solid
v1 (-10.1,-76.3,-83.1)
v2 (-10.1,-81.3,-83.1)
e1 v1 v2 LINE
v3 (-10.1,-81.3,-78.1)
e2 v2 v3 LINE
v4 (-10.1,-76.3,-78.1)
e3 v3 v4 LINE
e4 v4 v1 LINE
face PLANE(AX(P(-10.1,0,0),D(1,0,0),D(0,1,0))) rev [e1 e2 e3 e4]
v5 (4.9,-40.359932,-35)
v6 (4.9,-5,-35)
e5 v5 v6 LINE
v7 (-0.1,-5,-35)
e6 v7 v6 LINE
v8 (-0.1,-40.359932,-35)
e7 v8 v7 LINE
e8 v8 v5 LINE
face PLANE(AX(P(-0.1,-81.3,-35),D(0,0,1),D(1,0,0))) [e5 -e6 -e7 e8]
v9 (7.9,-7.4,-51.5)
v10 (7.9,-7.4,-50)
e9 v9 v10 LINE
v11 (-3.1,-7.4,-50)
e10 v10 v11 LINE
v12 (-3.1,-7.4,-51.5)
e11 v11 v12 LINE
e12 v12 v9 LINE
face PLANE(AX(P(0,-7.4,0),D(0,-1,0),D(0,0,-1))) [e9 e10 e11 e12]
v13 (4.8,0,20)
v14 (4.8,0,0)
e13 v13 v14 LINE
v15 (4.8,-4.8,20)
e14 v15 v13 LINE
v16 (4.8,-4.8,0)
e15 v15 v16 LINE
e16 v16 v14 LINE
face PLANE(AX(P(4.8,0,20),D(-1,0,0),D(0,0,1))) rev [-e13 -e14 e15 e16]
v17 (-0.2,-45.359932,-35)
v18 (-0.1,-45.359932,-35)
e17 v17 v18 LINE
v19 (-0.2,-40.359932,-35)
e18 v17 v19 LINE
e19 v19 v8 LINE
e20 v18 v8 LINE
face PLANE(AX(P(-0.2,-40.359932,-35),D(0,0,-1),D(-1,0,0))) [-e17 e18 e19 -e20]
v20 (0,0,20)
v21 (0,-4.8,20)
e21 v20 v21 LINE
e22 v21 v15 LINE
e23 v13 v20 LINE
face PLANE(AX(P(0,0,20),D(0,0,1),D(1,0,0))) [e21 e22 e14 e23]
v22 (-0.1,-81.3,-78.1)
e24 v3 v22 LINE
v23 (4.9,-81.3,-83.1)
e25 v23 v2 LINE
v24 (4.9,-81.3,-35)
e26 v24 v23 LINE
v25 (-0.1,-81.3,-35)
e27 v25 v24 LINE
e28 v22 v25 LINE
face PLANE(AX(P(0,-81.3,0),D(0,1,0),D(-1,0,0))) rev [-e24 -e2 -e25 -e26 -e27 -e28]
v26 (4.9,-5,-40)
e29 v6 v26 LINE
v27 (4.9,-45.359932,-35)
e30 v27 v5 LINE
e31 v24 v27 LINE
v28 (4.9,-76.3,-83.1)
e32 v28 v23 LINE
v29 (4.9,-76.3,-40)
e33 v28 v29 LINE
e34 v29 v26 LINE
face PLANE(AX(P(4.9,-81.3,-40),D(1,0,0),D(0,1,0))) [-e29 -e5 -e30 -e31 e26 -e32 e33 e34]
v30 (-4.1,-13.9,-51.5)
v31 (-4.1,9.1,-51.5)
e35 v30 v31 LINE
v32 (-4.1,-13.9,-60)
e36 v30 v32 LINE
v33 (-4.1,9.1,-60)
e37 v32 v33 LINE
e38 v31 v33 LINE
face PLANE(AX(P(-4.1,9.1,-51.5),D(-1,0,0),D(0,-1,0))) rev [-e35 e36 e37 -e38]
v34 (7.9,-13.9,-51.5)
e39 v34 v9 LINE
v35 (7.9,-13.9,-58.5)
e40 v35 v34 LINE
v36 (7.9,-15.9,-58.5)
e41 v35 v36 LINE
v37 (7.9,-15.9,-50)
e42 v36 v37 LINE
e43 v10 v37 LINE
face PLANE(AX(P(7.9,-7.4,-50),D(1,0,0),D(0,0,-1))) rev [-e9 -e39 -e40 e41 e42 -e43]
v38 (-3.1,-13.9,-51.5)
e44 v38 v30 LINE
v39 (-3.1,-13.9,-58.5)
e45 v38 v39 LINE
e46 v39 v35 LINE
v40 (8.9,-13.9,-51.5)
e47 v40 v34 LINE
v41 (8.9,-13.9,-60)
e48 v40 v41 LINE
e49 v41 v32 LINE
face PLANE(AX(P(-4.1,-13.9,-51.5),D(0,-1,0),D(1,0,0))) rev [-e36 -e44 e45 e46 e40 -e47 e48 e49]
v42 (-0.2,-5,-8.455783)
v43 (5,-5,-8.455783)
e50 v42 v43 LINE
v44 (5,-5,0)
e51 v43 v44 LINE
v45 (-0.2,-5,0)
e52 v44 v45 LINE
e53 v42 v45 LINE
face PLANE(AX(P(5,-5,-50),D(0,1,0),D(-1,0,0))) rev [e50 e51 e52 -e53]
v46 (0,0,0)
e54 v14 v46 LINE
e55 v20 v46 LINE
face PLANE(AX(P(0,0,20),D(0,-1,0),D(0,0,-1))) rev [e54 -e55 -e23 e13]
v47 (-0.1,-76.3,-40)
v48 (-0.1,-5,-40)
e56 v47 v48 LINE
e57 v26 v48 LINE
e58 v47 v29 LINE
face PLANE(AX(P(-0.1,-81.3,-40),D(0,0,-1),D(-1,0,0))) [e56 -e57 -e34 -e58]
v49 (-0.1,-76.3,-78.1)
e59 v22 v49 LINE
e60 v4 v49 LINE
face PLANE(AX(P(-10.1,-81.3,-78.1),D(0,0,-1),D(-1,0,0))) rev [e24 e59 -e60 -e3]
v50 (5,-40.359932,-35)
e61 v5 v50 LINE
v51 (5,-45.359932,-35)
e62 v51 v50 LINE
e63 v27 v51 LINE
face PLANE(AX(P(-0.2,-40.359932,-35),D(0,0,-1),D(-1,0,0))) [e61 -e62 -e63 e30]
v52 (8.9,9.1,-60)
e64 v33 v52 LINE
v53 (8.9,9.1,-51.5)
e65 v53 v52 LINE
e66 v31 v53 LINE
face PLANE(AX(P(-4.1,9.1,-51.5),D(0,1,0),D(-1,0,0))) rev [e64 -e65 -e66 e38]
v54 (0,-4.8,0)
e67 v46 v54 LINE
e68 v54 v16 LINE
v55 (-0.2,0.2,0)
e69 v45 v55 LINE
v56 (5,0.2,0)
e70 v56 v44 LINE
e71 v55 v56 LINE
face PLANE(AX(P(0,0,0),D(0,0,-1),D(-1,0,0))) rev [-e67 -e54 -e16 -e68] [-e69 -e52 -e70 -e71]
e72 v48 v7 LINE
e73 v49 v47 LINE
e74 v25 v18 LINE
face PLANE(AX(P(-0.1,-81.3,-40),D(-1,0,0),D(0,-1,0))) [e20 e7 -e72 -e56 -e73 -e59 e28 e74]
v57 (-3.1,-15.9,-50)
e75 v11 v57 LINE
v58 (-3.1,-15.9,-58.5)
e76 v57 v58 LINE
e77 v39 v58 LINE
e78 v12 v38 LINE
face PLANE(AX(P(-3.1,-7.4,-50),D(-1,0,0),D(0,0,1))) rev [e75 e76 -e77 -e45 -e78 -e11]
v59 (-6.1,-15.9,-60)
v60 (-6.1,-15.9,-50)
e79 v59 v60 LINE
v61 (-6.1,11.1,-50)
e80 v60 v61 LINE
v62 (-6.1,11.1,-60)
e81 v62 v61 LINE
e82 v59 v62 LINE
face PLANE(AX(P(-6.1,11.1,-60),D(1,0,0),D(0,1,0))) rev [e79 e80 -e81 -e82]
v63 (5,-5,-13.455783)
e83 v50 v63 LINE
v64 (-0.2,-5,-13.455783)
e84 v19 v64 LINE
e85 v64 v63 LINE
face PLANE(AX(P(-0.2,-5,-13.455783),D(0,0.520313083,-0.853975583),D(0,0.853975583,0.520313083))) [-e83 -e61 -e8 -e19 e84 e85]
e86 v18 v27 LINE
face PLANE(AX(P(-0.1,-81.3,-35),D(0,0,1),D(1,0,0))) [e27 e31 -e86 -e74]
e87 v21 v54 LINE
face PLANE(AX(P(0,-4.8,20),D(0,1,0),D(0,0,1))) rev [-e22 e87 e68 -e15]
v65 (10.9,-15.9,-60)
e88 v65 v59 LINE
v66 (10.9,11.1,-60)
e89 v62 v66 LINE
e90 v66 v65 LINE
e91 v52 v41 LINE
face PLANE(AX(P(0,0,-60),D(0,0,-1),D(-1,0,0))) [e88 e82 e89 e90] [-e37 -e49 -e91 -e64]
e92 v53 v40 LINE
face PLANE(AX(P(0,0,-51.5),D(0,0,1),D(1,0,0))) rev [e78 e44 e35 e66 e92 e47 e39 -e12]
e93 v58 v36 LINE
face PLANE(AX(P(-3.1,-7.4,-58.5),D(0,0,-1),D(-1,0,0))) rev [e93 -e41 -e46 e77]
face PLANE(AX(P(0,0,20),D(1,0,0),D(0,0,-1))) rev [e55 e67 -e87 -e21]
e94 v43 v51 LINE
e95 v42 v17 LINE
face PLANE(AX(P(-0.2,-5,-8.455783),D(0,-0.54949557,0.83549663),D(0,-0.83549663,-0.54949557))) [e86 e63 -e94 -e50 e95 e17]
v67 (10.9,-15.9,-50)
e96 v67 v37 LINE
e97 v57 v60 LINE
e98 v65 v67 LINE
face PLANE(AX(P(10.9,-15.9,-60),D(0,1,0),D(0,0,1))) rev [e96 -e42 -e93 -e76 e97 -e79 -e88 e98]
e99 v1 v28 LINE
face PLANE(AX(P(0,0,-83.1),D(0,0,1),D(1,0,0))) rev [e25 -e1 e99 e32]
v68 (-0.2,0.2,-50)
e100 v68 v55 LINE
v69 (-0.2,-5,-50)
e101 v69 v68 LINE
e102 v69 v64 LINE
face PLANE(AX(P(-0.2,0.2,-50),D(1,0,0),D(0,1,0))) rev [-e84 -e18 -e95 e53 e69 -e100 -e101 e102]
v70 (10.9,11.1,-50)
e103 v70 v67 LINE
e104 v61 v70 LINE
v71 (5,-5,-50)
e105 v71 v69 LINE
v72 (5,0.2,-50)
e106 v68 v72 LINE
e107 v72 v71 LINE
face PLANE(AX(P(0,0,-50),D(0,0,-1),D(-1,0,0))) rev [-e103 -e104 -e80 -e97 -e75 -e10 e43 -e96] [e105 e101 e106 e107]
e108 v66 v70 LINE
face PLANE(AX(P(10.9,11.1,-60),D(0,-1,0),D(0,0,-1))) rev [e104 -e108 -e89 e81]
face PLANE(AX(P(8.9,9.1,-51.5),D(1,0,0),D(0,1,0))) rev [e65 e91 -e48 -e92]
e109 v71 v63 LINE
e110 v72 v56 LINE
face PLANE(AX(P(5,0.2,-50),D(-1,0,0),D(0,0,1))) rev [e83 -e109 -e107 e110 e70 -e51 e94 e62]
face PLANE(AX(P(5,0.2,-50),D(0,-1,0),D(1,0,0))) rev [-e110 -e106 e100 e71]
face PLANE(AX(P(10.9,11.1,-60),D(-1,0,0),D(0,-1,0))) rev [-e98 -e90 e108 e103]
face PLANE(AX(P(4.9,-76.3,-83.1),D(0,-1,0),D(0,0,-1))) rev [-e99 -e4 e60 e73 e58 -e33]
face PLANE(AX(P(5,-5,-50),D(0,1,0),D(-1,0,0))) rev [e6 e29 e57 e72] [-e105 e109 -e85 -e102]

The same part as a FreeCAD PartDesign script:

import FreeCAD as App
import Part
import Sketcher
from FreeCAD import Vector


def add_polygon(sketch, points):
    """Adds a closed chain of lines whose ends are joined by coincident constraints."""
    first, n = sketch.GeometryCount, len(points)
    for a, b in zip(points, points[1:] + points[:1]):
        sketch.addGeometry(Part.LineSegment(App.Vector(*a, 0), App.Vector(*b, 0)), False)
    for i in range(n):
        sketch.addConstraint(Sketcher.Constraint("Coincident", first + i, 2, first + (i + 1) % n, 1))

doc = App.newDocument("Part")
body = doc.addObject("PartDesign::Body", "Body")

sketch1 = body.newObject("Sketcher::SketchObject", "Sketch")
sketch1.AttachmentSupport = (doc.getObject("XY_Plane"), [""])
sketch1.MapMode = "FlatFace"
add_polygon(sketch1, [(0, 0), (0, -4.8), (4.8, -4.8), (4.8, 0)])
sketch1.addConstraint(Sketcher.Constraint("Vertical", 0))
sketch1.addConstraint(Sketcher.Constraint("Horizontal", 1))
sketch1.addConstraint(Sketcher.Constraint("Vertical", 2))
sketch1.addConstraint(Sketcher.Constraint("Horizontal", 3))
sketch1.addConstraint(Sketcher.Constraint("Coincident", 3, 2, -1, 1))
sketch1.addConstraint(Sketcher.Constraint("Equal", 3, 0))
sketch1.addConstraint(Sketcher.Constraint("DistanceX", 1, 1, 1, 2, 4.8))
pad1 = body.newObject("PartDesign::Pad", "Pad")
pad1.Profile = sketch1
pad1.Length = 20

sketch2 = body.newObject("Sketcher::SketchObject", "Sketch001")
sketch2.AttachmentSupport = (doc.getObject("XY_Plane"), [""])
sketch2.MapMode = "FlatFace"
add_polygon(sketch2, [(5, 0), (5, -5), (0, -5), (0, 0)])
sketch2.addConstraint(Sketcher.Constraint("Vertical", 0))
sketch2.addConstraint(Sketcher.Constraint("Horizontal", 1))
sketch2.addConstraint(Sketcher.Constraint("Vertical", 2))
sketch2.addConstraint(Sketcher.Constraint("Horizontal", 3))
sketch2.addConstraint(Sketcher.Constraint("Equal", 3, 0))
sketch2.addConstraint(Sketcher.Constraint("DistanceX", 1, 2, 1, 1, 5.2))
sketch2.addConstraint(Sketcher.Constraint("DistanceX", -1, 1, 0, 2, 5.0))
sketch2.addConstraint(Sketcher.Constraint("DistanceY", 0, 2, -1, 1, 5.0))
pad2 = body.newObject("PartDesign::Pad", "Pad001")
pad2.Profile = sketch2
pad2.Length = 50
pad2.Reversed = True

sketch3 = body.newObject("Sketcher::SketchObject", "Sketch002")
sketch3.AttachmentSupport = (doc.getObject("XY_Plane"), [""])
sketch3.MapMode = "FlatFace"
sketch3.AttachmentOffset = App.Placement(Vector(0, 0, -50), App.Rotation())
add_polygon(sketch3, [(11, 11), (11, -16), (-6, -16), (-6, 11)])
sketch3.addConstraint(Sketcher.Constraint("Vertical", 0))
sketch3.addConstraint(Sketcher.Constraint("Horizontal", 1))
sketch3.addConstraint(Sketcher.Constraint("Vertical", 2))
sketch3.addConstraint(Sketcher.Constraint("Horizontal", 3))
sketch3.addConstraint(Sketcher.Constraint("DistanceX", 1, 2, 1, 1, 17.0))
sketch3.addConstraint(Sketcher.Constraint("DistanceY", 0, 2, 0, 1, 27.0))
sketch3.addConstraint(Sketcher.Constraint("DistanceX", -1, 1, 0, 2, 10.9))
sketch3.addConstraint(Sketcher.Constraint("DistanceY", 0, 2, -1, 1, 15.9))
pad3 = body.newObject("PartDesign::Pad", "Pad002")
pad3.Profile = sketch3
pad3.Length = 10
pad3.Reversed = True

sketch4 = body.newObject("Sketcher::SketchObject", "Sketch003")
sketch4.AttachmentSupport = (doc.getObject("XY_Plane"), [""])
sketch4.MapMode = "FlatFace"
sketch4.AttachmentOffset = App.Placement(Vector(0, 0, -60), App.Rotation())
add_polygon(sketch4, [(9, 9), (9, -14), (-4, -14), (-4, 9)])
sketch4.addConstraint(Sketcher.Constraint("Vertical", 0))
sketch4.addConstraint(Sketcher.Constraint("Horizontal", 1))
sketch4.addConstraint(Sketcher.Constraint("Vertical", 2))
sketch4.addConstraint(Sketcher.Constraint("Horizontal", 3))
sketch4.addConstraint(Sketcher.Constraint("DistanceX", 1, 2, 1, 1, 13.0))
sketch4.addConstraint(Sketcher.Constraint("DistanceY", 0, 2, 0, 1, 23.0))
sketch4.addConstraint(Sketcher.Constraint("DistanceX", -1, 1, 0, 2, 8.9))
sketch4.addConstraint(Sketcher.Constraint("DistanceY", 0, 2, -1, 1, 13.9))
pocket1 = body.newObject("PartDesign::Pocket", "Pocket")
pocket1.Profile = sketch4
pocket1.Length = 8.5
pocket1.Reversed = True

sketch5 = body.newObject("Sketcher::SketchObject", "Sketch004")
sketch5.AttachmentSupport = (doc.getObject("XZ_Plane"), [""])
sketch5.MapMode = "FlatFace"
sketch5.AttachmentOffset = App.Placement(Vector(0, 0, 15.9), App.Rotation())
add_polygon(sketch5, [(-3, -50), (-3, -58), (8, -58), (8, -50)])
sketch5.addConstraint(Sketcher.Constraint("Vertical", 0))
sketch5.addConstraint(Sketcher.Constraint("Horizontal", 1))
sketch5.addConstraint(Sketcher.Constraint("Vertical", 2))
sketch5.addConstraint(Sketcher.Constraint("Horizontal", 3))
sketch5.addConstraint(Sketcher.Constraint("DistanceX", 1, 1, 1, 2, 11.0))
sketch5.addConstraint(Sketcher.Constraint("DistanceY", 0, 2, 0, 1, 8.5))
sketch5.addConstraint(Sketcher.Constraint("DistanceY", 2, 2, -1, 1, 50.0))
sketch5.addConstraint(Sketcher.Constraint("DistanceX", 0, 2, -1, 1, 3.1))
pocket2 = body.newObject("PartDesign::Pocket", "Pocket001")
pocket2.Profile = sketch5
pocket2.Length = 8.5

sketch6 = body.newObject("Sketcher::SketchObject", "Sketch005")
sketch6.AttachmentSupport = (doc.getObject("XZ_Plane"), [""])
sketch6.MapMode = "FlatFace"
sketch6.AttachmentOffset = App.Placement(Vector(0, 0, -0.2), App.Rotation())
add_polygon(sketch6, [(0, -40), (0, -35), (5, -35), (5, -40)])
sketch6.addConstraint(Sketcher.Constraint("Vertical", 0))
sketch6.addConstraint(Sketcher.Constraint("Horizontal", 1))
sketch6.addConstraint(Sketcher.Constraint("Vertical", 2))
sketch6.addConstraint(Sketcher.Constraint("Horizontal", 3))
sketch6.addConstraint(Sketcher.Constraint("Equal", 3, 0))
sketch6.addConstraint(Sketcher.Constraint("DistanceX", 1, 1, 1, 2, 5.0))
sketch6.addConstraint(Sketcher.Constraint("DistanceY", 0, 2, -1, 1, 35.0))
sketch6.addConstraint(Sketcher.Constraint("DistanceX", 0, 2, -1, 1, 0.1))
pad4 = body.newObject("PartDesign::Pad", "Pad003")
pad4.Profile = sketch6
pad4.Length = 81.5

sketch7 = body.newObject("Sketcher::SketchObject", "Sketch006")
sketch7.AttachmentSupport = (doc.getObject("XY_Plane"), [""])
sketch7.MapMode = "FlatFace"
sketch7.AttachmentOffset = App.Placement(Vector(0, 0, -40), App.Rotation())
add_polygon(sketch7, [(5, -76), (5, -81), (0, -81), (0, -76)])
sketch7.addConstraint(Sketcher.Constraint("Vertical", 0))
sketch7.addConstraint(Sketcher.Constraint("Horizontal", 1))
sketch7.addConstraint(Sketcher.Constraint("Vertical", 2))
sketch7.addConstraint(Sketcher.Constraint("Horizontal", 3))
sketch7.addConstraint(Sketcher.Constraint("Equal", 3, 0))
sketch7.addConstraint(Sketcher.Constraint("DistanceX", 1, 2, 1, 1, 5.0))
sketch7.addConstraint(Sketcher.Constraint("DistanceX", -1, 1, 0, 2, 4.9))
sketch7.addConstraint(Sketcher.Constraint("DistanceY", 0, 2, -1, 1, 81.3))
pad5 = body.newObject("PartDesign::Pad", "Pad004")
pad5.Profile = sketch7
pad5.Length = 43.1
pad5.Reversed = True

sketch8 = body.newObject("Sketcher::SketchObject", "Sketch007")
sketch8.AttachmentSupport = (doc.getObject("YZ_Plane"), [""])
sketch8.MapMode = "FlatFace"
sketch8.AttachmentOffset = App.Placement(Vector(0, 0, 5), App.Rotation())
add_polygon(sketch8, [(-40, -35), (-5, -13), (-5, -8), (-45, -35)])
sketch8.addConstraint(Sketcher.Constraint("Vertical", 1))
sketch8.addConstraint(Sketcher.Constraint("Horizontal", 3))
sketch8.addConstraint(Sketcher.Constraint("Equal", 3, 1))
sketch8.addConstraint(Sketcher.Constraint("DistanceX", 3, 1, 3, 2, 5.0))
sketch8.addConstraint(Sketcher.Constraint("DistanceX", 0, 2, -1, 1, 5.0))
sketch8.addConstraint(Sketcher.Constraint("DistanceY", 2, 2, -1, 1, 35.0))
sketch8.addConstraint(Sketcher.Constraint("Distance", 0, 41.406257))
sketch8.addConstraint(Sketcher.Constraint("Distance", 2, 48.306517))
pad6 = body.newObject("PartDesign::Pad", "Pad005")
pad6.Profile = sketch8
pad6.Length = 5.2
pad6.Reversed = True

sketch9 = body.newObject("Sketcher::SketchObject", "Sketch008")
sketch9.AttachmentSupport = (doc.getObject("YZ_Plane"), [""])
sketch9.MapMode = "FlatFace"
sketch9.AttachmentOffset = App.Placement(Vector(0, 0, -0.1), App.Rotation())
add_polygon(sketch9, [(-76, -83), (-81, -83), (-81, -78), (-76, -78)])
sketch9.addConstraint(Sketcher.Constraint("Horizontal", 0))
sketch9.addConstraint(Sketcher.Constraint("Vertical", 1))
sketch9.addConstraint(Sketcher.Constraint("Horizontal", 2))
sketch9.addConstraint(Sketcher.Constraint("Vertical", 3))
sketch9.addConstraint(Sketcher.Constraint("Equal", 2, 1))
sketch9.addConstraint(Sketcher.Constraint("DistanceX", 0, 2, 0, 1, 5.0))
sketch9.addConstraint(Sketcher.Constraint("DistanceX", 0, 2, -1, 1, 81.3))
sketch9.addConstraint(Sketcher.Constraint("DistanceY", 0, 2, -1, 1, 83.1))
pad7 = body.newObject("PartDesign::Pad", "Pad006")
pad7.Profile = sketch9
pad7.Length = 10
pad7.Reversed = True

doc.recompute()
